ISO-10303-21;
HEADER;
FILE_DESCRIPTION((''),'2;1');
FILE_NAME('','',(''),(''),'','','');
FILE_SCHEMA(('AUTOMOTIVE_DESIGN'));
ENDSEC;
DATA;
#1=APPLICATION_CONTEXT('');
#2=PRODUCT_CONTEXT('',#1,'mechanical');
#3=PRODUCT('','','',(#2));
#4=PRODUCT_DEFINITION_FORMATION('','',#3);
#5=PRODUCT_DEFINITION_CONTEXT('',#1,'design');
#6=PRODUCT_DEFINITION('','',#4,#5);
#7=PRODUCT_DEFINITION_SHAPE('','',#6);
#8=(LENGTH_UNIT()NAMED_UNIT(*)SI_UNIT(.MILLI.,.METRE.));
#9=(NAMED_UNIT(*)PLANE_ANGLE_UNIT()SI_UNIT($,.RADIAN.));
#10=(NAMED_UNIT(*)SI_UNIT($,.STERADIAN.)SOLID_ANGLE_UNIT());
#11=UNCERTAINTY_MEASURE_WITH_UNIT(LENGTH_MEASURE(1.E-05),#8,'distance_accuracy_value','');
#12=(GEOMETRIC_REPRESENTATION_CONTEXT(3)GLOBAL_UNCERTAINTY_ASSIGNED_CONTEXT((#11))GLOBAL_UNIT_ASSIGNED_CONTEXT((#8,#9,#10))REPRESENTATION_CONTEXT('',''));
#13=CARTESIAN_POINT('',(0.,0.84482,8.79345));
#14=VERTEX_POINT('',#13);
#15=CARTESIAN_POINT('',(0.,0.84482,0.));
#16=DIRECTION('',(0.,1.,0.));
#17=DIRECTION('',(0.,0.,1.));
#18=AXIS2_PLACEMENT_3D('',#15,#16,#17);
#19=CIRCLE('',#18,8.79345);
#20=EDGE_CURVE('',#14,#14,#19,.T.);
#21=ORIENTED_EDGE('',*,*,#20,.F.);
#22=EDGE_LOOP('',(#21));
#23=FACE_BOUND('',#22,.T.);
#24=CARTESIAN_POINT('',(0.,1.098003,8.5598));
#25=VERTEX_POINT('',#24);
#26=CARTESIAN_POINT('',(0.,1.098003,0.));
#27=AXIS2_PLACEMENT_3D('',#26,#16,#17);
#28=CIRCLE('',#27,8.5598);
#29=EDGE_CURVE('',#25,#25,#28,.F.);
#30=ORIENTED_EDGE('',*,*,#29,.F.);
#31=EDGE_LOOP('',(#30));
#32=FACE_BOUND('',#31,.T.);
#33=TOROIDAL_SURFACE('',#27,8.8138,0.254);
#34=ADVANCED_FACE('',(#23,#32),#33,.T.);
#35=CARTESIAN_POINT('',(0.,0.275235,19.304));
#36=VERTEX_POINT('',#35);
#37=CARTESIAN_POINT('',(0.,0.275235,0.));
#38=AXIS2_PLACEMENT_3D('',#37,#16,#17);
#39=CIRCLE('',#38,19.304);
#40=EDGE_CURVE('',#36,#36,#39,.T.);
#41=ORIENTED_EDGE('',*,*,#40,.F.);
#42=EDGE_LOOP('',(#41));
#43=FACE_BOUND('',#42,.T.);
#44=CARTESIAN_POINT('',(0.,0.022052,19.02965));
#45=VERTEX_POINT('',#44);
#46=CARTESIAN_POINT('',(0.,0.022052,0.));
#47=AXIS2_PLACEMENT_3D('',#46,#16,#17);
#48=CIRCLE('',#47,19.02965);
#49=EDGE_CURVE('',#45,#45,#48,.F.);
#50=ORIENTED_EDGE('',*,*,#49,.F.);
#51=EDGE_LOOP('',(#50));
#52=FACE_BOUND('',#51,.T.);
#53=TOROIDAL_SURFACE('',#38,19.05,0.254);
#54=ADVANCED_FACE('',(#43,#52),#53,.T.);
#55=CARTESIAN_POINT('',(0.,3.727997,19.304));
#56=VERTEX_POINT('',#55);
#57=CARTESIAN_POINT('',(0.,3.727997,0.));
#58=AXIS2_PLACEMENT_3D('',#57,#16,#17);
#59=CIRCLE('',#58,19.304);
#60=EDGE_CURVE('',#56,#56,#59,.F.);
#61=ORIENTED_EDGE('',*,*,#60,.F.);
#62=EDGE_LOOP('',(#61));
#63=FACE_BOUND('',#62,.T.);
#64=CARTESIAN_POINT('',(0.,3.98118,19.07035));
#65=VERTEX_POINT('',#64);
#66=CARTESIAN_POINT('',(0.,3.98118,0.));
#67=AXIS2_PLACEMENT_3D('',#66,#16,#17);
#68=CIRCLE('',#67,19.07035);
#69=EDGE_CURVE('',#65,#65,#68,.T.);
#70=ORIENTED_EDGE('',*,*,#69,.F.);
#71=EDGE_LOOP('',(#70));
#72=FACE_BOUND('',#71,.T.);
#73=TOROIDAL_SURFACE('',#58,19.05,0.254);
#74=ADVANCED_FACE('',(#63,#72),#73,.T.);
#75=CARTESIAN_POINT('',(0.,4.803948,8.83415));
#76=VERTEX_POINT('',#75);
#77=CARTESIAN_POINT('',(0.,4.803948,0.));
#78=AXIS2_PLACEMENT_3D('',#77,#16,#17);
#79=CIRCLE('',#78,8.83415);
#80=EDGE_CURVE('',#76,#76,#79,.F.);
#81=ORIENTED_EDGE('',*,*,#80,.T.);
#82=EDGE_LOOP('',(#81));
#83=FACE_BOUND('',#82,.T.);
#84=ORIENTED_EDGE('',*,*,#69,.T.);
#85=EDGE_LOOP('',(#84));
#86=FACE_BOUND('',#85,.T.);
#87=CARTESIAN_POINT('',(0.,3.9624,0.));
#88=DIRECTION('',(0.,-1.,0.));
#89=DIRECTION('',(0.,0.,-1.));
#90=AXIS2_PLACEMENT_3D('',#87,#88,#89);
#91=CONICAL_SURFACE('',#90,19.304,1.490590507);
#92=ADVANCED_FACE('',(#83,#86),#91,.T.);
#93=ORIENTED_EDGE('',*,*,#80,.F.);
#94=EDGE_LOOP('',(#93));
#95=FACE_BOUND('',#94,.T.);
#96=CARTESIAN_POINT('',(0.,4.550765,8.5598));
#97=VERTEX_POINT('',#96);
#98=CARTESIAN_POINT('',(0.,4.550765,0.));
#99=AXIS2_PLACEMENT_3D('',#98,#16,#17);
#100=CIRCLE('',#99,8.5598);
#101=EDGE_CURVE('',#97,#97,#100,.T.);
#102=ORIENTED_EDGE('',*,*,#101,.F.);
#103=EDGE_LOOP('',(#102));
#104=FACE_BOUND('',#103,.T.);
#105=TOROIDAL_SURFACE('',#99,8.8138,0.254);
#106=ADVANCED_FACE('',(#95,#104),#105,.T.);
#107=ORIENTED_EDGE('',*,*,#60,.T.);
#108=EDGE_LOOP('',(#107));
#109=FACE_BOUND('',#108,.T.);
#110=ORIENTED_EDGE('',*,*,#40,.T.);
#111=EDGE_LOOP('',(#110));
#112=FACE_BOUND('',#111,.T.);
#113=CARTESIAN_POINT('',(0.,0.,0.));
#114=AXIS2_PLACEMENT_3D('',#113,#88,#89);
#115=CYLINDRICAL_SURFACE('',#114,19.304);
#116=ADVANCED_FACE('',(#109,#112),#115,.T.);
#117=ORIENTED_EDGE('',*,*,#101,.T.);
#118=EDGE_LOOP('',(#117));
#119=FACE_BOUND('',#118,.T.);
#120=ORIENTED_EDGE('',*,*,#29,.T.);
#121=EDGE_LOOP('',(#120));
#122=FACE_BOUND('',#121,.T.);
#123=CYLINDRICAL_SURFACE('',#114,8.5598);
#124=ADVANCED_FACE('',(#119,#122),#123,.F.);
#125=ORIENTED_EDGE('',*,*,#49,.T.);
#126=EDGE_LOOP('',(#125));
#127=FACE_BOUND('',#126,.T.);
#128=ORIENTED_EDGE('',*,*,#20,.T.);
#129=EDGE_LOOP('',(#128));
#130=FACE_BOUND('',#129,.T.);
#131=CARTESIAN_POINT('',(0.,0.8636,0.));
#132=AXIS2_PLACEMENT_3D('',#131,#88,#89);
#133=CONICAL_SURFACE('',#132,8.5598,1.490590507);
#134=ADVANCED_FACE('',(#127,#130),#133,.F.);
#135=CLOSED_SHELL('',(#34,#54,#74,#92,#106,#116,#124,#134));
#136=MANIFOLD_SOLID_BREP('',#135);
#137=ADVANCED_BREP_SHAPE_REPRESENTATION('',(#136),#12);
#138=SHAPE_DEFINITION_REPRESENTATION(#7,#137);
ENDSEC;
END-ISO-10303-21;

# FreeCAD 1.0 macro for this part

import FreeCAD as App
import Part
import Sketcher

V = App.Vector
Q = App.Units.Quantity


def edges_at(feature, points):
    """Names of the edges that pass closest to the given points."""
    edges = feature.Shape.Edges
    near = lambda p: min(range(len(edges)), key=lambda i: edges[i].distToShape(Part.Vertex(*p))[0])
    return sorted({f"Edge{near(p) + 1}" for p in points})


def add_polygon(sketch, points):
    """Adds a closed chain of lines whose ends are joined by coincident constraints."""
    first, n = sketch.GeometryCount, len(points)
    for a, b in zip(points, points[1:] + points[:1]):
        sketch.addGeometry(Part.LineSegment(App.Vector(*a, 0), App.Vector(*b, 0)), False)
    for i in range(n):
        sketch.addConstraint(Sketcher.Constraint("Coincident", first + i, 2, first + (i + 1) % n, 1))

doc = App.newDocument("Part")
body = doc.addObject("PartDesign::Body", "Body")

sketch1 = doc.addObject("Sketcher::SketchObject", "Sketch")
body.addObject(sketch1)
sketch1.AttachmentSupport = (doc.YZ_Plane, [""])
sketch1.MapMode = "FlatFace"
add_polygon(sketch1, [(4.826, -8.5598), (0.8636, -8.5598), (0, -19.304), (3.9624, -19.304)])
sketch1.addConstraint([
    Sketcher.Constraint("Horizontal", 0),
    Sketcher.Constraint("Horizontal", 2),
    Sketcher.Constraint("PointOnObject", 1, 2, -2),
    Sketcher.Constraint("Parallel", 1, 3),
    Sketcher.Constraint("DistanceX", 0, 2, 0, 1, Q("0.156 in")),
    Sketcher.Constraint("DistanceY", 1, 2, -1, 1, Q("0.76 in")),
    Sketcher.Constraint("DistanceX", -1, 1, 3, 2, Q("0.19 in")),
    Sketcher.Constraint("DistanceY", 0, 2, -1, 1, Q("0.337 in")),
])
revolution = doc.addObject("PartDesign::Revolution", "Revolution")
body.addObject(revolution)
revolution.Profile = sketch1
revolution.ReferenceAxis = (sketch1, ["H_Axis"])
revolution.Angle = 360
doc.recompute()

fillet = doc.addObject("PartDesign::Fillet", "Fillet")
body.addObject(fillet)
fillet.Base = (revolution, edges_at(revolution, [
    (0, 3.962, 19.304),
    (0, 0, 19.304),
    (0, 0.864, 8.56),
    (0, 4.826, 8.56),
]))
fillet.Radius = Q("0.01 in")

doc.recompute()
